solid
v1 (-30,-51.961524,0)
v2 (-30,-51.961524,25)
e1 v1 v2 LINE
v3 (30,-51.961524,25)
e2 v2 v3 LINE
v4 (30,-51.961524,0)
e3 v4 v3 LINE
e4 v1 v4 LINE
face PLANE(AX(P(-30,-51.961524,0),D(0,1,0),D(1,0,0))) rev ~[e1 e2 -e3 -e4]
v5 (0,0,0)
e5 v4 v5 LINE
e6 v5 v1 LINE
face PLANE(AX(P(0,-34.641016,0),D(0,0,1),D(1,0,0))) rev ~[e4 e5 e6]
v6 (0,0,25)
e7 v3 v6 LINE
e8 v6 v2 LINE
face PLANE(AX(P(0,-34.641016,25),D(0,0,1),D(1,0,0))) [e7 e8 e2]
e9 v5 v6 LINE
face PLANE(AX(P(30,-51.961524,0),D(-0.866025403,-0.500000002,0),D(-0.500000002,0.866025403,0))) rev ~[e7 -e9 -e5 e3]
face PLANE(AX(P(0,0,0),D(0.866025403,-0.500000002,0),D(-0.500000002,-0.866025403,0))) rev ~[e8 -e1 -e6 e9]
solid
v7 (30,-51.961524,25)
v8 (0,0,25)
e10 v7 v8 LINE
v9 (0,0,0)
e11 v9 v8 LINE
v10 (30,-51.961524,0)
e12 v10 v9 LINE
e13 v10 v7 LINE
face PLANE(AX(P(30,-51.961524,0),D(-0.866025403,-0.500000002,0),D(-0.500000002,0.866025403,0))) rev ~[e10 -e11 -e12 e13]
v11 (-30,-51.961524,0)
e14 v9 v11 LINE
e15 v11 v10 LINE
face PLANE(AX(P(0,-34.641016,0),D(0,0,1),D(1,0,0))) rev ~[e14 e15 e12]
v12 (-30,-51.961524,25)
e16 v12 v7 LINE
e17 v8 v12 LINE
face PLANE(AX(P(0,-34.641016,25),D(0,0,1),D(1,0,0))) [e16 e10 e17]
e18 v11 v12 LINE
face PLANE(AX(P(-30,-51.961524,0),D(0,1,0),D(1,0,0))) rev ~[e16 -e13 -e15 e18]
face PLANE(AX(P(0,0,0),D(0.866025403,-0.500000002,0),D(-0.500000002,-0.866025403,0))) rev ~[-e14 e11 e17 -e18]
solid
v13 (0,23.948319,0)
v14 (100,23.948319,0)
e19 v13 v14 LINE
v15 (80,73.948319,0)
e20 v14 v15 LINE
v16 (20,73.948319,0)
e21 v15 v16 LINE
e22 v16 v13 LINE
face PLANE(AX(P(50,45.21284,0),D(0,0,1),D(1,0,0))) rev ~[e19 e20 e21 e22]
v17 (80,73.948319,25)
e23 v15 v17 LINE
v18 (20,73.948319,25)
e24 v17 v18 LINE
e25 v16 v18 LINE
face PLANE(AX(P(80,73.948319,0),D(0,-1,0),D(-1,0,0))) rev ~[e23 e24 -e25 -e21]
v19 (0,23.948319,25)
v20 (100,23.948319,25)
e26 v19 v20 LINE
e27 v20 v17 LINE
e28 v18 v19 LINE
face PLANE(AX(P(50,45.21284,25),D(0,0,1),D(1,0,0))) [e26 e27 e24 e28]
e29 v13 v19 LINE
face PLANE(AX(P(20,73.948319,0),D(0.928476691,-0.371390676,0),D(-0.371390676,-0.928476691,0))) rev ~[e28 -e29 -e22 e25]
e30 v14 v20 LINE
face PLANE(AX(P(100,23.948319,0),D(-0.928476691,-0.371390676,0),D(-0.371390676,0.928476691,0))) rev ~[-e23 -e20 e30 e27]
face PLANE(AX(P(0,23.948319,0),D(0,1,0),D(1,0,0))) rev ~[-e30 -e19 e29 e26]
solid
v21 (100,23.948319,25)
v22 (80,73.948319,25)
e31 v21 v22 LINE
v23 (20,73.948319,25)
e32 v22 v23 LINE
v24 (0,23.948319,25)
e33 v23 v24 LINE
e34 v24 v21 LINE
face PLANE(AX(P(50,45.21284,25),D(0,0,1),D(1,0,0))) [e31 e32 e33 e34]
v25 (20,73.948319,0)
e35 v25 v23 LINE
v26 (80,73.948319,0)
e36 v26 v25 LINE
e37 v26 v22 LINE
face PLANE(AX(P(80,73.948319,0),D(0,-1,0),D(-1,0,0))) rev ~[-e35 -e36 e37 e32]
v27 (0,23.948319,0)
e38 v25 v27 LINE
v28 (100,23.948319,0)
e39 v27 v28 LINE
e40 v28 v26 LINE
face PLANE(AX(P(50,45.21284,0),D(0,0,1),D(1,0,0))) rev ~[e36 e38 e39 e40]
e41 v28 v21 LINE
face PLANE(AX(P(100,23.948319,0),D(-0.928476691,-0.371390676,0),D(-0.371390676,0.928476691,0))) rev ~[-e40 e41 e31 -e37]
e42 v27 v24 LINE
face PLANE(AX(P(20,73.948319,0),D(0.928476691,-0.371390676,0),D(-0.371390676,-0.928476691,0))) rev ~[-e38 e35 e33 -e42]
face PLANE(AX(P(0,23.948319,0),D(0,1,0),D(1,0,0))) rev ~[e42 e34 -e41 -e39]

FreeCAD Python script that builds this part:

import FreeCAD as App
import Part
import Sketcher
Q = App.Units.Quantity

doc = App.newDocument("Part")
body = doc.addObject("PartDesign::Body", "Body")
body.AllowCompound = True

# Sketch on XY plane
sketch1 = body.newObject("Sketcher::SketchObject", "Sketch")
sketch1.AttachmentSupport = (doc.getObject("XY_Plane"), [""])
sketch1.MapMode = "FlatFace"
sketch1.addGeometry([
    Part.LineSegment(App.Vector(30, -52, 0), App.Vector(0, 0, 0)),  # 0
    Part.LineSegment(App.Vector(0, 0, 0), App.Vector(-30, -52, 0)),  # 1
    Part.LineSegment(App.Vector(-30, -52, 0), App.Vector(30, -52, 0)),  # 2
    Part.LineSegment(App.Vector(20, 74, 0), App.Vector(0, 24, 0)),  # 3
    Part.LineSegment(App.Vector(0, 24, 0), App.Vector(100, 24, 0)),  # 4
    Part.LineSegment(App.Vector(100, 24, 0), App.Vector(80, 74, 0)),  # 5
    Part.LineSegment(App.Vector(80, 74, 0), App.Vector(20, 74, 0)),  # 6
], False)
sketch1.addConstraint([
    Sketcher.Constraint("Coincident", 0, 2, 1, 1),
    Sketcher.Constraint("Coincident", 1, 2, 2, 1),
    Sketcher.Constraint("Coincident", 2, 2, 0, 1),
    Sketcher.Constraint("Coincident", 3, 2, 4, 1),
    Sketcher.Constraint("Coincident", 4, 2, 5, 1),
    Sketcher.Constraint("Coincident", 5, 2, 6, 1),
    Sketcher.Constraint("Coincident", 6, 2, 3, 1),
    Sketcher.Constraint("Horizontal", 2),
    Sketcher.Constraint("Horizontal", 4),
    Sketcher.Constraint("Horizontal", 6),
    Sketcher.Constraint("Coincident", 0, 2, -1, 1),
    Sketcher.Constraint("PointOnObject", 3, 2, -2),
    Sketcher.Constraint("Equal", 2, 6),
    Sketcher.Constraint("Equal", 0, 1),
    Sketcher.Constraint("Equal", 3, 5),
    Sketcher.Constraint("DistanceX", 2, 1, 2, 2, 60.0),
    Sketcher.Constraint("DistanceX", 4, 1, 4, 2, 100.0),
    Sketcher.Constraint("Angle", 0, Q("120 deg")),
    Sketcher.Constraint("DistanceY", 4, 2, 5, 2, 50.0),
    Sketcher.Constraint("DistanceY", -1, 1, 3, 2, 23.948319),
])
pad1 = body.newObject("PartDesign::Pad", "Pad")
pad1.Profile = sketch1
pad1.Length = 25
body2 = doc.addObject("PartDesign::Body", "Body001")
body2.AllowCompound = True

# Sketch on XY plane
sketch2 = body2.newObject("Sketcher::SketchObject", "Sketch001")
sketch2.AttachmentSupport = (doc.getObject("XY_Plane001"), [""])
sketch2.MapMode = "FlatFace"
sketch2.addGeometry([
    Part.LineSegment(App.Vector(30, -52, 0), App.Vector(0, 0, 0)),  # 0
    Part.LineSegment(App.Vector(0, 0, 0), App.Vector(-30, -52, 0)),  # 1
    Part.LineSegment(App.Vector(-30, -52, 0), App.Vector(30, -52, 0)),  # 2
    Part.LineSegment(App.Vector(20, 74, 0), App.Vector(0, 24, 0)),  # 3
    Part.LineSegment(App.Vector(0, 24, 0), App.Vector(100, 24, 0)),  # 4
    Part.LineSegment(App.Vector(100, 24, 0), App.Vector(80, 74, 0)),  # 5
    Part.LineSegment(App.Vector(80, 74, 0), App.Vector(20, 74, 0)),  # 6
], False)
sketch2.addConstraint([
    Sketcher.Constraint("Coincident", 0, 2, 1, 1),
    Sketcher.Constraint("Coincident", 1, 2, 2, 1),
    Sketcher.Constraint("Coincident", 2, 2, 0, 1),
    Sketcher.Constraint("Coincident", 3, 2, 4, 1),
    Sketcher.Constraint("Coincident", 4, 2, 5, 1),
    Sketcher.Constraint("Coincident", 5, 2, 6, 1),
    Sketcher.Constraint("Coincident", 6, 2, 3, 1),
    Sketcher.Constraint("Horizontal", 2),
    Sketcher.Constraint("Horizontal", 4),
    Sketcher.Constraint("Horizontal", 6),
    Sketcher.Constraint("Coincident", 0, 2, -1, 1),
    Sketcher.Constraint("PointOnObject", 3, 2, -2),
    Sketcher.Constraint("Equal", 2, 6),
    Sketcher.Constraint("Equal", 0, 1),
    Sketcher.Constraint("Equal", 3, 5),
    Sketcher.Constraint("DistanceX", 2, 1, 2, 2, 60.0),
    Sketcher.Constraint("DistanceX", 4, 1, 4, 2, 100.0),
    Sketcher.Constraint("Angle", 0, Q("120 deg")),
    Sketcher.Constraint("DistanceY", 4, 2, 5, 2, 50.0),
    Sketcher.Constraint("DistanceY", -1, 1, 3, 2, 23.948319),
])
pad2 = body2.newObject("PartDesign::Pad", "Pad001")
pad2.Profile = sketch2
pad2.Length = 25

doc.recompute()
